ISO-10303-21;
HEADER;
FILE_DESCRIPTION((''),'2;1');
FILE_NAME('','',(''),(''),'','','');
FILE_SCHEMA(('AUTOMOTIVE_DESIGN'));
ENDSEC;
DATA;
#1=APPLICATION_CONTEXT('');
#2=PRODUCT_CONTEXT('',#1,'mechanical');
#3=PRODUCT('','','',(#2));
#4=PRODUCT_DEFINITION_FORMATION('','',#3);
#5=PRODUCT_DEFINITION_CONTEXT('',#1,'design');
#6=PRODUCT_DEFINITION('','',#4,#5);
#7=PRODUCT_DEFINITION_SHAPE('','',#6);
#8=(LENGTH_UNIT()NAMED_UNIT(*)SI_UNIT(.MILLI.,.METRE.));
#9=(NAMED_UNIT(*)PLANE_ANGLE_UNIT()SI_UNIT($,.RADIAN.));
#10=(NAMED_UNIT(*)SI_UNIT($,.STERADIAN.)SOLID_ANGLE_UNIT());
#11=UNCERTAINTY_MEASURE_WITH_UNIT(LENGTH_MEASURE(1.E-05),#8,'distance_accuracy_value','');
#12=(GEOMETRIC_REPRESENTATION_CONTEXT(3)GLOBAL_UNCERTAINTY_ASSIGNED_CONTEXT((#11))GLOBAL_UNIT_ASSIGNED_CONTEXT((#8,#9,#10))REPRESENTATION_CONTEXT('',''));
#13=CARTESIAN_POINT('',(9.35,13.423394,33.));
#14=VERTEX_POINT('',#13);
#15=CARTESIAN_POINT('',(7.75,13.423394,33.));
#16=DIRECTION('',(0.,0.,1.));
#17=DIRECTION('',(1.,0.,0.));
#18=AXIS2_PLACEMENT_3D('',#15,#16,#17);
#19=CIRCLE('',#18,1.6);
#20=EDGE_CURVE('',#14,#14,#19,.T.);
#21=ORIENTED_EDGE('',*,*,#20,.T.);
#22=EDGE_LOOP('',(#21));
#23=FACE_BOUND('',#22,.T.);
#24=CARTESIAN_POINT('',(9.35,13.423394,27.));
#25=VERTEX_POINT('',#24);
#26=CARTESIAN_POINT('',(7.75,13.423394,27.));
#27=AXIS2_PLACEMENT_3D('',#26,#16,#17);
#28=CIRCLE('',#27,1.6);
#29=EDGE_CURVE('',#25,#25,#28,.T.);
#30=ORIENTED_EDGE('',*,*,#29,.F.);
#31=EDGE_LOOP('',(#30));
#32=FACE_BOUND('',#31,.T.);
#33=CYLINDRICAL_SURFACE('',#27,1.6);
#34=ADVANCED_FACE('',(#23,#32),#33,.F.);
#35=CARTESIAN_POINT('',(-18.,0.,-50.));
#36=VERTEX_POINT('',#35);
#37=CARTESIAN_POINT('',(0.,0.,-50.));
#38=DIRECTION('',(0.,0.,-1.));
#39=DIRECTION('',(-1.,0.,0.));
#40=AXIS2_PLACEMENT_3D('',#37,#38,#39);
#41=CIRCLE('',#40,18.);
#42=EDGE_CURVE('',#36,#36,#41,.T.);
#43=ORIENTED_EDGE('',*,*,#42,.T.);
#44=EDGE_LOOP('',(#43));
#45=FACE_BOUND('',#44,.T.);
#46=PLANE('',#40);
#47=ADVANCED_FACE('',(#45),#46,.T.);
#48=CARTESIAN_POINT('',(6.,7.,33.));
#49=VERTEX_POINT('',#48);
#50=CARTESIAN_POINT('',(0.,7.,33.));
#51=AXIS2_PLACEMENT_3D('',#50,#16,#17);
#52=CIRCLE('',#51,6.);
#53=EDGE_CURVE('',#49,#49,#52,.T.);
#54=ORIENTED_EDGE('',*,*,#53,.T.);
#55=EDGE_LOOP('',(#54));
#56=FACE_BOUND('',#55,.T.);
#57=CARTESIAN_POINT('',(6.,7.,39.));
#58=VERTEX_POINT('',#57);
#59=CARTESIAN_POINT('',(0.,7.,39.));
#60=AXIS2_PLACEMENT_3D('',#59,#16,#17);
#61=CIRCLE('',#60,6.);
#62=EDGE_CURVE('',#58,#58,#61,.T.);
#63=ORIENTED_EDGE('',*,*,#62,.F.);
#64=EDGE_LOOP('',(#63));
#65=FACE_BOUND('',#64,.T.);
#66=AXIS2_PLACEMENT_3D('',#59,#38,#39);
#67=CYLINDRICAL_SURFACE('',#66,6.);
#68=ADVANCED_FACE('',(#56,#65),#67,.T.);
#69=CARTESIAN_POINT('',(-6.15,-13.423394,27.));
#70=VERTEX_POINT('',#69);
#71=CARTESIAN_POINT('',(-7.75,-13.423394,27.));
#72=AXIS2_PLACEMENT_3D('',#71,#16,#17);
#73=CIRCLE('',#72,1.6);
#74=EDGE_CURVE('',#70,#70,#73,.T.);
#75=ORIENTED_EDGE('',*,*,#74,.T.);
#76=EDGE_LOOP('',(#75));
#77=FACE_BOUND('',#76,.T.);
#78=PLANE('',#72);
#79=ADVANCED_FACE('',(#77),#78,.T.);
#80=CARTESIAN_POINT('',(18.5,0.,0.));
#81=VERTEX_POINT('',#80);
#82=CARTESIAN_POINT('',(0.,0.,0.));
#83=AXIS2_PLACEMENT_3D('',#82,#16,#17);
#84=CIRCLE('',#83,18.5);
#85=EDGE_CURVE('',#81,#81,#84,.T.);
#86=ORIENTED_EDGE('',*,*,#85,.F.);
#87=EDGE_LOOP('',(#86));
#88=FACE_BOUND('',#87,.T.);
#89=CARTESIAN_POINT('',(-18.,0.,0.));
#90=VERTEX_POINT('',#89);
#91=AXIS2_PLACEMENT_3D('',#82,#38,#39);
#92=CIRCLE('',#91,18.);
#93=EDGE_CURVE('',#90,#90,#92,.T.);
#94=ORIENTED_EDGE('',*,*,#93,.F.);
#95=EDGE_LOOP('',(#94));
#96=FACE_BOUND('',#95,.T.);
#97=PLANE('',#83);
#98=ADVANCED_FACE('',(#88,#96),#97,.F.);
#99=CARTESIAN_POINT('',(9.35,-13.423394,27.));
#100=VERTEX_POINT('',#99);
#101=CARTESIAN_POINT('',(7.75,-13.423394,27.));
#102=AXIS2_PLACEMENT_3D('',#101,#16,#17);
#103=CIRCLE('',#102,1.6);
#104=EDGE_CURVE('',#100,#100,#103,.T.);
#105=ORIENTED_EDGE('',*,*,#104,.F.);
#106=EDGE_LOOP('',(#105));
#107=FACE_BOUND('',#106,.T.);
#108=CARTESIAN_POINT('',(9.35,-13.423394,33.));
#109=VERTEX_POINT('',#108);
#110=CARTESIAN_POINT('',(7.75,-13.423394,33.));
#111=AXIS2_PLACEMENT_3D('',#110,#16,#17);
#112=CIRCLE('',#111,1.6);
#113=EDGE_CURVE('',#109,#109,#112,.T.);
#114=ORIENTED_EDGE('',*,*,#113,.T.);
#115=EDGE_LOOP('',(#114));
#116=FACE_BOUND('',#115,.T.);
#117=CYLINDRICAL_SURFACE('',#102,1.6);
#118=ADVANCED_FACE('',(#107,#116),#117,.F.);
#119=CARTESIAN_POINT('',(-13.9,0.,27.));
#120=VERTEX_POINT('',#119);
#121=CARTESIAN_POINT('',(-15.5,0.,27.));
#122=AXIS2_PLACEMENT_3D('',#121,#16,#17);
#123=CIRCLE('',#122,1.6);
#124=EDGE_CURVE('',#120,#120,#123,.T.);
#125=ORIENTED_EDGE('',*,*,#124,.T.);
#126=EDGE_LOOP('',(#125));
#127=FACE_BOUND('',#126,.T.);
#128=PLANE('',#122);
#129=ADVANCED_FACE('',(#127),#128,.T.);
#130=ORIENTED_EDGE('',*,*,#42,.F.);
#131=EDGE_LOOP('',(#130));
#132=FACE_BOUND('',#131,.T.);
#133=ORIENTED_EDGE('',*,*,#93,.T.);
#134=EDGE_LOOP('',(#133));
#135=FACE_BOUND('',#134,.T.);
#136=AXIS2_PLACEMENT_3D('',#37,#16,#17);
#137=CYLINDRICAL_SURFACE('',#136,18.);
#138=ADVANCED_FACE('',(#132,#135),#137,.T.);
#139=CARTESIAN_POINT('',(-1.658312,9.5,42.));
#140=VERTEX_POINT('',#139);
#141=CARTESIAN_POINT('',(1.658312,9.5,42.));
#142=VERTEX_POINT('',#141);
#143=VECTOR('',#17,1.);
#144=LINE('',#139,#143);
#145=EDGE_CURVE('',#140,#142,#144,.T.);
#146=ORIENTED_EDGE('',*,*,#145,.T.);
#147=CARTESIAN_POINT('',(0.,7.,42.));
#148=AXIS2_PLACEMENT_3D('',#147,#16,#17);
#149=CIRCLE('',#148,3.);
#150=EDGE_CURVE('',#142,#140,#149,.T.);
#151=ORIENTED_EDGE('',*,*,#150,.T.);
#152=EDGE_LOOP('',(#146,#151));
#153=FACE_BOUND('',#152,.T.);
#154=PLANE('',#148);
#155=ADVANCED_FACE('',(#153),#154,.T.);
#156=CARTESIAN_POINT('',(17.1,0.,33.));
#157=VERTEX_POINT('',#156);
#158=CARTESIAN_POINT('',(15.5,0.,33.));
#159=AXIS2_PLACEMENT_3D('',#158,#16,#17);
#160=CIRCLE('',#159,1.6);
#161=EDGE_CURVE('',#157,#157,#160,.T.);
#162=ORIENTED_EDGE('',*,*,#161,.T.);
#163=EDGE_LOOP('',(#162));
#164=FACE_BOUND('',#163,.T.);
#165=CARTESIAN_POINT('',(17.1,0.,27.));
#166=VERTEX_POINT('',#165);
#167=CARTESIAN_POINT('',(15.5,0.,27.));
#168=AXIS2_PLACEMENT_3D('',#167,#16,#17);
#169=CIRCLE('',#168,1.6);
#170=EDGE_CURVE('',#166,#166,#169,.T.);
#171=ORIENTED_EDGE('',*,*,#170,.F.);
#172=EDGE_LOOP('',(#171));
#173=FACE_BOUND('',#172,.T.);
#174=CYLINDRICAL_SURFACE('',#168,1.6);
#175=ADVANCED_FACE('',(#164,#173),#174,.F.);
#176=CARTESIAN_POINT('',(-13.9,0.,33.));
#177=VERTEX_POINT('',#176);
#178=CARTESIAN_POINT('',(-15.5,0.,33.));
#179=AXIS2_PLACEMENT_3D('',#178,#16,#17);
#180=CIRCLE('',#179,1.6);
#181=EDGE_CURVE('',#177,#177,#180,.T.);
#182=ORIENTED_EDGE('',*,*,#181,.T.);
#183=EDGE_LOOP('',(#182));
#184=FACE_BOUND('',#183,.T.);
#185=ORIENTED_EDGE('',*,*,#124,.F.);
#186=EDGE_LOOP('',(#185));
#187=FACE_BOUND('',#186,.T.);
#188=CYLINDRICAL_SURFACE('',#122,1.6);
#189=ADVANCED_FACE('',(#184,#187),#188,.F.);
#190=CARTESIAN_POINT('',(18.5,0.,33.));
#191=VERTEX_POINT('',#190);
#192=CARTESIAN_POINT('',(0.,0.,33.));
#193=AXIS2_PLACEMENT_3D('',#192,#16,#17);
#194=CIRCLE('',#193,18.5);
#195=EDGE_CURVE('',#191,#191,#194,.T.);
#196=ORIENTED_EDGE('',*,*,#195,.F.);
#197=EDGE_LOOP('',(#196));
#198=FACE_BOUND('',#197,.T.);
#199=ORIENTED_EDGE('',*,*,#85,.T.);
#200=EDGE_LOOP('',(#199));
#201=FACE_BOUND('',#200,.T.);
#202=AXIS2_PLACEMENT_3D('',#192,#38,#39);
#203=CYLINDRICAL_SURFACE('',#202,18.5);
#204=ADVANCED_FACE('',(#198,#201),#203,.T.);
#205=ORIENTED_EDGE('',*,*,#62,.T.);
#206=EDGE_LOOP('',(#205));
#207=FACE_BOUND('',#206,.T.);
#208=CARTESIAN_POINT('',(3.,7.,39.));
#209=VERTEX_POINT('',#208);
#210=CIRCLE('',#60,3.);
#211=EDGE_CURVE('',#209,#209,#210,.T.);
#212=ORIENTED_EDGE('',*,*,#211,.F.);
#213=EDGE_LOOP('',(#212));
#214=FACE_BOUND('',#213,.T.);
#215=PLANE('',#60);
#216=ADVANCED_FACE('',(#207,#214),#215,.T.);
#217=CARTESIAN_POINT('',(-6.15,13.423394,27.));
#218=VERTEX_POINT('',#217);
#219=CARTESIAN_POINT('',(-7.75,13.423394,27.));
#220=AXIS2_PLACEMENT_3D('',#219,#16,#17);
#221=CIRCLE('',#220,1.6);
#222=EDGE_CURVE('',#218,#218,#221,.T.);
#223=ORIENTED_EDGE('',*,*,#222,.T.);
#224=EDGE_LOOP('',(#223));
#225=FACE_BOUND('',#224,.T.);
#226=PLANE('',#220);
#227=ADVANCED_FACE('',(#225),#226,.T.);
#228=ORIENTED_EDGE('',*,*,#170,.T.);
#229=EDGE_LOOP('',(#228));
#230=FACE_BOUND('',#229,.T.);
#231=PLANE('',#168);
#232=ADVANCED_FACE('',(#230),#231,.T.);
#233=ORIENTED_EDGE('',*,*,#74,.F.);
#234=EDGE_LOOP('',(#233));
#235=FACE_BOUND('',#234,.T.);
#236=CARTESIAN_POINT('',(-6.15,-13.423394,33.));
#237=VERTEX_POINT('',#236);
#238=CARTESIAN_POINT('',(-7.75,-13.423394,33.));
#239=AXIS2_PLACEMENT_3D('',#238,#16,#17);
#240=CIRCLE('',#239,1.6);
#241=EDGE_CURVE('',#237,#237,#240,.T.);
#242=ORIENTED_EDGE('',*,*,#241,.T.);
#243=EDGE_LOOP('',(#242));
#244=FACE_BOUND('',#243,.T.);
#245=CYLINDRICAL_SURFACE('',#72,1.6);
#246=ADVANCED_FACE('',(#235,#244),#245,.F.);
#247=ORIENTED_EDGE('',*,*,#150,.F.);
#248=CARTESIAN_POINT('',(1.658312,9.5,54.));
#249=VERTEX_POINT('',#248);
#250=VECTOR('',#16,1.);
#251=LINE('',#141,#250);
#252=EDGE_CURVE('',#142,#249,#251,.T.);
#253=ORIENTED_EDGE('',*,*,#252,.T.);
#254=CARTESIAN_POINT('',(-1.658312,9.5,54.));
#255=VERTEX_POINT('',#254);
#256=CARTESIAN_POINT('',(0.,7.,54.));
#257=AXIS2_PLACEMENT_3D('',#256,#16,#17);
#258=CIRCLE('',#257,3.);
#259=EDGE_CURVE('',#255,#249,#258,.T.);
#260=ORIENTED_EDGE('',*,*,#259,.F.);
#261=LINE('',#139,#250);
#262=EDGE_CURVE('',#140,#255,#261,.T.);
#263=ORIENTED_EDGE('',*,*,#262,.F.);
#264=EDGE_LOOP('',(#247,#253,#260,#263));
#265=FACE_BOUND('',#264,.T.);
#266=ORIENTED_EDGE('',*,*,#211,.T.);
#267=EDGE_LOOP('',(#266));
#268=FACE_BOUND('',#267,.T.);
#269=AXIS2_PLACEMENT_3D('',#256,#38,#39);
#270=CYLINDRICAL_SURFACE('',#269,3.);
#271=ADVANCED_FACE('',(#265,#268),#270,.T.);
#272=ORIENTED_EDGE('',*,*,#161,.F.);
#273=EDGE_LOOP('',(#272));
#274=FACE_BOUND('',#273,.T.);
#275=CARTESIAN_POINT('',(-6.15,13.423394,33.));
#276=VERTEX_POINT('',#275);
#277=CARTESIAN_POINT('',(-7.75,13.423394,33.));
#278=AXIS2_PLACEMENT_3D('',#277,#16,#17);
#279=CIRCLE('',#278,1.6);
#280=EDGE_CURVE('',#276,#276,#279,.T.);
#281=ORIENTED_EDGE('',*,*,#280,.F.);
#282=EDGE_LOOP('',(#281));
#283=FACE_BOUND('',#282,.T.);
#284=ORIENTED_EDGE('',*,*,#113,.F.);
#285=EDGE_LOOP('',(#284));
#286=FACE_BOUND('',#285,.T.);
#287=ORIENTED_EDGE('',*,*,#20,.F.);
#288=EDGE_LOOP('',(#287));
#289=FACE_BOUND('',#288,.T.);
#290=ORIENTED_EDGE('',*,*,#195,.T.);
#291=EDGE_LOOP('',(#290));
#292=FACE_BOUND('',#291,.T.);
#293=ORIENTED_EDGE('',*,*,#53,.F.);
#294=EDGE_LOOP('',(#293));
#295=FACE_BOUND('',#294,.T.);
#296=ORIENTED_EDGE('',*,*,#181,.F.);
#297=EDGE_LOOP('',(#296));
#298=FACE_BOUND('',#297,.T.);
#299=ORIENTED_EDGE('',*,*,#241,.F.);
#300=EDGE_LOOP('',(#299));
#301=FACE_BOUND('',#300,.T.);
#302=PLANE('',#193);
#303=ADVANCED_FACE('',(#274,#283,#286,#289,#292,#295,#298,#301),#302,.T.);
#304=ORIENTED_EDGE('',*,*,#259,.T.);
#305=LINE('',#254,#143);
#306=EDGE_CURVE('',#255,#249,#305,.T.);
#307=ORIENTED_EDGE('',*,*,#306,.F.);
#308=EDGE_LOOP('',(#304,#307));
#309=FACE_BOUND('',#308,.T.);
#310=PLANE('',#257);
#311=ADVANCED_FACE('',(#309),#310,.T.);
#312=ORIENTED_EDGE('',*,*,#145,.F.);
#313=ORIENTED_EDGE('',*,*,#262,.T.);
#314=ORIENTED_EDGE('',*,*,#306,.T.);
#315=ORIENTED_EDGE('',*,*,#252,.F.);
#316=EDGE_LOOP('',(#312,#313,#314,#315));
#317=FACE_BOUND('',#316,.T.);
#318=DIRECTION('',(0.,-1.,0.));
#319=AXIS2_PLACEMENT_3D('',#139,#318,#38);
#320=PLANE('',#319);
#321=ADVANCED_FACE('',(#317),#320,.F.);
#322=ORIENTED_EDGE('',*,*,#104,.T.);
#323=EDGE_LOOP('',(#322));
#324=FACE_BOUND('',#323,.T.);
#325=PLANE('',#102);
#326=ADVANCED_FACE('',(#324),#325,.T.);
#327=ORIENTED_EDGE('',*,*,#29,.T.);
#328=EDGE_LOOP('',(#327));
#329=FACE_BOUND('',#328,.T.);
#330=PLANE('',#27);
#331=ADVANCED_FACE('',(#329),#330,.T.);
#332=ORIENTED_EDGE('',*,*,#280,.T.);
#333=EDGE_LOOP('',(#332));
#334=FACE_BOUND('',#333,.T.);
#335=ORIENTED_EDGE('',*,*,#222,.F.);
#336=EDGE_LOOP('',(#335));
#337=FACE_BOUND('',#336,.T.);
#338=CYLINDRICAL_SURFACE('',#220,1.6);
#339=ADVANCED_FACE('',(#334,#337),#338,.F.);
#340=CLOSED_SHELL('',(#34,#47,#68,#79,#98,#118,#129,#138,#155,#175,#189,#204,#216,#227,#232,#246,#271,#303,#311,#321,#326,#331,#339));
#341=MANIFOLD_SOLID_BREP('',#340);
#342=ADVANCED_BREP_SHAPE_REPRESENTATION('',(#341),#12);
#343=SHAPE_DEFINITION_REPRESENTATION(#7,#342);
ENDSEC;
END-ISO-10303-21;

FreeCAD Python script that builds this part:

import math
import FreeCAD as App
import Part
import Sketcher
Q = App.Units.Quantity

doc = App.newDocument("Part")
body = doc.addObject("PartDesign::Body", "Body")

# Sketch on XY plane
sketch1 = doc.addObject("Sketcher::SketchObject", "Sketch")
body.addObject(sketch1)
sketch1.AttachmentSupport = (doc.XY_Plane, [""])
sketch1.MapMode = "FlatFace"
sketch1.addGeometry(Part.Circle(App.Vector(0, 0, 0), App.Vector(0, 0, 1), 18), False)
sketch1.addConstraint([
    Sketcher.Constraint("Coincident", 0, 3, -1, 1),
    Sketcher.Constraint("Diameter", 0, Q("37 mm")),
])
pad1 = doc.addObject("PartDesign::Pad", "Pad")
body.addObject(pad1)
pad1.Profile = sketch1
pad1.Length = 33

# Sketch on XY plane
sketch2 = doc.addObject("Sketcher::SketchObject", "Sketch001")
body.addObject(sketch2)
sketch2.AttachmentSupport = (doc.XY_Plane, [""])
sketch2.MapMode = "FlatFace"
sketch2.addGeometry(Part.Circle(App.Vector(0, 0, 0), App.Vector(0, 0, 1), 18), False)
sketch2.addConstraint([
    Sketcher.Constraint("Coincident", 0, 3, -1, 1),
    Sketcher.Constraint("Diameter", 0, Q("36 mm")),
])
pad2 = doc.addObject("PartDesign::Pad", "Pad001")
body.addObject(pad2)
pad2.Profile = sketch2
pad2.Length = 50
pad2.Reversed = True

# Sketch on XY plane
sketch3 = doc.addObject("Sketcher::SketchObject", "Sketch002")
body.addObject(sketch3)
sketch3.AttachmentSupport = (doc.XY_Plane, [""])
sketch3.MapMode = "FlatFace"
sketch3.AttachmentOffset = App.Placement(App.Vector(0, 0, 33), App.Rotation())
sketch3.addGeometry([
    Part.Circle(App.Vector(-15.5, 0, 0), App.Vector(0, 0, 1), 1.6),  # 0
    Part.Circle(App.Vector(-7.8, 13.4, 0), App.Vector(0, 0, 1), 1.6),  # 1
    Part.Circle(App.Vector(7.8, 13.4, 0), App.Vector(0, 0, 1), 1.6),  # 2
    Part.Circle(App.Vector(15.5, 0, 0), App.Vector(0, 0, 1), 1.6),  # 3
    Part.Circle(App.Vector(7.8, -13.4, 0), App.Vector(0, 0, 1), 1.6),  # 4
    Part.Circle(App.Vector(-7.8, -13.4, 0), App.Vector(0, 0, 1), 1.6),  # 5
], False)
sketch3.addConstraint([
    Sketcher.Constraint("Equal", 0, 1),
    Sketcher.Constraint("Equal", 1, 2),
    Sketcher.Constraint("Equal", 2, 3),
    Sketcher.Constraint("Equal", 3, 4),
    Sketcher.Constraint("Equal", 4, 5),
    Sketcher.Constraint("Symmetric", 0, 3, 3, 3, -1, 1),
    Sketcher.Constraint("Symmetric", 1, 3, 4, 3, -1, 1),
    Sketcher.Constraint("Symmetric", 2, 3, 5, 3, -1, 1),
    Sketcher.Constraint("Symmetric", 1, 3, 2, 3, -2),
    Sketcher.Constraint("PointOnObject", 0, 3, -1),
    Sketcher.Constraint("Diameter", 0, Q("3.2 mm")),
    Sketcher.Constraint("DistanceX", 0, 3, 3, 3, Q("31 mm")),
    Sketcher.Constraint("DistanceX", 1, 3, 2, 3, Q("15.5 mm")),
    Sketcher.Constraint("DistanceY", -1, 1, 1, 3, Q("13.423394 mm")),
])
pocket1 = doc.addObject("PartDesign::Pocket", "Pocket")
body.addObject(pocket1)
pocket1.Profile = sketch3
pocket1.Length = 6

# Sketch on XY plane
sketch4 = doc.addObject("Sketcher::SketchObject", "Sketch003")
body.addObject(sketch4)
sketch4.AttachmentSupport = (doc.XY_Plane, [""])
sketch4.MapMode = "FlatFace"
sketch4.AttachmentOffset = App.Placement(App.Vector(0, 0, 33), App.Rotation())
sketch4.addGeometry(Part.Circle(App.Vector(0, 7, 0), App.Vector(0, 0, 1), 6), False)
sketch4.addConstraint([
    Sketcher.Constraint("PointOnObject", 0, 3, -2),
    Sketcher.Constraint("Diameter", 0, Q("12 mm")),
    Sketcher.Constraint("DistanceY", -1, 1, 0, 3, Q("7 mm")),
])
pad3 = doc.addObject("PartDesign::Pad", "Pad002")
body.addObject(pad3)
pad3.Profile = sketch4
pad3.Length = 6

# Sketch on XY plane
sketch5 = doc.addObject("Sketcher::SketchObject", "Sketch004")
body.addObject(sketch5)
sketch5.AttachmentSupport = (doc.XY_Plane, [""])
sketch5.MapMode = "FlatFace"
sketch5.AttachmentOffset = App.Placement(App.Vector(0, 0, 39), App.Rotation())
sketch5.addGeometry(Part.Circle(App.Vector(0, 7, 0), App.Vector(0, 0, 1), 3), False)
sketch5.addConstraint([
    Sketcher.Constraint("PointOnObject", 0, 3, -2),
    Sketcher.Constraint("Diameter", 0, Q("6 mm")),
    Sketcher.Constraint("DistanceY", -1, 1, 0, 3, Q("7 mm")),
])
pad4 = doc.addObject("PartDesign::Pad", "Pad003")
body.addObject(pad4)
pad4.Profile = sketch5
pad4.Length = 15

# Sketch on XY plane
sketch6 = doc.addObject("Sketcher::SketchObject", "Sketch005")
body.addObject(sketch6)
sketch6.AttachmentSupport = (doc.XY_Plane, [""])
sketch6.MapMode = "FlatFace"
sketch6.AttachmentOffset = App.Placement(App.Vector(0, 0, 42), App.Rotation())
sketch6.addGeometry([
    Part.LineSegment(App.Vector(-1.7, 9.5, 0), App.Vector(1.7, 9.5, 0)),
    Part.ArcOfCircle(Part.Circle(App.Vector(0, 7, 0), App.Vector(0, 0, 1), 3), math.radians(56), math.radians(124)),
], False)
sketch6.addConstraint([
    Sketcher.Constraint("Coincident", 0, 1, 1, 2),
    Sketcher.Constraint("Coincident", 1, 1, 0, 2),
    Sketcher.Constraint("Horizontal", 0),
    Sketcher.Constraint("PointOnObject", 1, 3, -2),
    Sketcher.Constraint("Radius", 1, Q("3 mm")),
    Sketcher.Constraint("DistanceY", -1, 1, 1, 3, Q("7 mm")),
    Sketcher.Constraint("DistanceY", -1, 1, 0, 1, Q("9.5 mm")),
])
pocket2 = doc.addObject("PartDesign::Pocket", "Pocket001")
body.addObject(pocket2)
pocket2.Profile = sketch6
pocket2.Length = 12
pocket2.Reversed = True

doc.recompute()
